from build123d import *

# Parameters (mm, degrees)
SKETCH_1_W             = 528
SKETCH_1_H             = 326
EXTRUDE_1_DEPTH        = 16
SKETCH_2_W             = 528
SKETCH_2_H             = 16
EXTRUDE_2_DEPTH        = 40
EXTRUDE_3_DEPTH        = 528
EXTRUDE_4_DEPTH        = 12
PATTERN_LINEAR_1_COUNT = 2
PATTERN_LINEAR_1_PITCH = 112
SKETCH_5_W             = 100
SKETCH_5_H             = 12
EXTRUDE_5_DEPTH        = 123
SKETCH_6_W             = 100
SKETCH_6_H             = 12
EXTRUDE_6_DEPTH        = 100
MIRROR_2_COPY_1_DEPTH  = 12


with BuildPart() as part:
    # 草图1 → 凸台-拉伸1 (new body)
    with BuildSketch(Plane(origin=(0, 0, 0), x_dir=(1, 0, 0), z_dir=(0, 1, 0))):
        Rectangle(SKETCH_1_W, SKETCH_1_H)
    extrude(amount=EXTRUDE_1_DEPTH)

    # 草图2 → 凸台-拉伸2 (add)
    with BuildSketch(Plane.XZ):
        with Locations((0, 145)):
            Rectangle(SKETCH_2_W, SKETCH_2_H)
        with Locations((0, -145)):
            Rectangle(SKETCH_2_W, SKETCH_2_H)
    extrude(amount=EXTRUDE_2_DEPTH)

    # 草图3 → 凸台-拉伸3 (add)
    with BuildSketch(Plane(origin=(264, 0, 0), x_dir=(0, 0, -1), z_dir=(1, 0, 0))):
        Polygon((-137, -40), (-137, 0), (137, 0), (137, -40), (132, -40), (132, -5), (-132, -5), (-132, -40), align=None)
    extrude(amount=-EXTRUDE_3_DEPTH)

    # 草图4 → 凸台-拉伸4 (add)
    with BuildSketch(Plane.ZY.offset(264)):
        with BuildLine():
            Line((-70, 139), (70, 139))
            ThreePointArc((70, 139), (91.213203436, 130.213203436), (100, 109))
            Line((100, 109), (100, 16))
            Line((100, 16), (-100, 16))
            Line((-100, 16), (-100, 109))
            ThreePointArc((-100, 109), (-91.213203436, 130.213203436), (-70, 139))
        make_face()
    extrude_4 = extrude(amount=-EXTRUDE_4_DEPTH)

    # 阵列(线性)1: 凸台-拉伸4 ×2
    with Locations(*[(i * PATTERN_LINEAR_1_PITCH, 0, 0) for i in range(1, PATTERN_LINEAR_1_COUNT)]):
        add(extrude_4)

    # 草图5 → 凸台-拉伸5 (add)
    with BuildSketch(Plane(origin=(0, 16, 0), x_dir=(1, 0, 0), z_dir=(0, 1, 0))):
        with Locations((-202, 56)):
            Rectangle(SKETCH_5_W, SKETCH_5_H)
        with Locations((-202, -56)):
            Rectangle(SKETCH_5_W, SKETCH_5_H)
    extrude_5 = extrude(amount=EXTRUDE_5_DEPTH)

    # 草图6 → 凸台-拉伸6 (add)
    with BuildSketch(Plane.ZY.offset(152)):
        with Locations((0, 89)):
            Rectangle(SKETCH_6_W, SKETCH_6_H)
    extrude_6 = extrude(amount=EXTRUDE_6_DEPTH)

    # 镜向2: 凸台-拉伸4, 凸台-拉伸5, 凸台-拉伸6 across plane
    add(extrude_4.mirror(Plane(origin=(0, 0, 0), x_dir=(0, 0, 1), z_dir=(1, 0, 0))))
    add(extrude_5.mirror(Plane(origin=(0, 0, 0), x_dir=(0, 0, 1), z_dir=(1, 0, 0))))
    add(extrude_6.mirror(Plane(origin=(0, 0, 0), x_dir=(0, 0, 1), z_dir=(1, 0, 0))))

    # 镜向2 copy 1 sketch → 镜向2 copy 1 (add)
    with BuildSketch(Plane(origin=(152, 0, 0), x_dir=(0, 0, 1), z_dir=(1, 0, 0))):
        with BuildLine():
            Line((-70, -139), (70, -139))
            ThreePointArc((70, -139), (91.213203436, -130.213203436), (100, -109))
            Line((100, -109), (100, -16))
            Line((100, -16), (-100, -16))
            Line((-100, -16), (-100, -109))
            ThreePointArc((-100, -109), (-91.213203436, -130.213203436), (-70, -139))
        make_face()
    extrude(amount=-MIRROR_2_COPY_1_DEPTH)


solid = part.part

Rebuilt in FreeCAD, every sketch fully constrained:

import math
import FreeCAD as App
import Part
import Sketcher

V = App.Vector
Q = App.Units.Quantity

doc = App.newDocument("Part")
params = doc.addObject("Spreadsheet::Sheet", "Params")
for row, (alias, value) in enumerate([
    ("sketch1_width", "528 mm"),
    ("sketch1_height", "326 mm"),
    ("pad1_length", "16 mm"),
    ("sketch2_width", "528 mm"),
    ("sketch2_height", "16 mm"),
    ("pad2_length", "40 mm"),
    ("sketch3_width", "40 mm"),
    ("sketch3_width2", "35 mm"),
    ("sketch3_height", "5 mm"),
    ("sketch3_height2", "264 mm"),
    ("pad3_length", "528 mm"),
    ("sketch4_radius", "30 mm"),
    ("sketch4_width", "93 mm"),
    ("sketch4_height", "140 mm"),
    ("pad4_length", "12 mm"),
    ("linearpattern_pitch", "112 mm"),
    ("sketch5_width", "100 mm"),
    ("sketch5_height", "12 mm"),
    ("pad5_length", "123 mm"),
    ("sketch6_width", "12 mm"),
    ("sketch6_height", "100 mm"),
    ("pad6_length", "100 mm"),
    ("sketch7_radius", "30 mm"),
    ("sketch7_width", "93 mm"),
    ("sketch7_height", "140 mm"),
    ("pad7_length", "12 mm"),
], start=1):
    params.set(f"A{row}", alias)
    params.set(f"B{row}", "=" + value)
    params.setAlias(f"B{row}", alias)

body = doc.addObject("PartDesign::Body", "Body")

# Sketch on XZ plane
sketch1 = doc.addObject("Sketcher::SketchObject", "Sketch")
body.addObject(sketch1)
sketch1.AttachmentSupport = (doc.XZ_Plane, [""])
sketch1.MapMode = "FlatFace"
sketch1.addGeometry([
    Part.LineSegment(V(-264, -163, 0), V(-264, 163, 0)),
    Part.LineSegment(V(-264, 163, 0), V(264, 163, 0)),
    Part.LineSegment(V(264, 163, 0), V(264, -163, 0)),
    Part.LineSegment(V(264, -163, 0), V(-264, -163, 0)),
], False)
sketch1.addConstraint([
    Sketcher.Constraint("Coincident", 0, 2, 1, 1),
    Sketcher.Constraint("Coincident", 1, 2, 2, 1),
    Sketcher.Constraint("Coincident", 2, 2, 3, 1),
    Sketcher.Constraint("Coincident", 3, 2, 0, 1),
    Sketcher.Constraint("Vertical", 0),
    Sketcher.Constraint("Horizontal", 1),
    Sketcher.Constraint("Vertical", 2),
    Sketcher.Constraint("Horizontal", 3),
    Sketcher.Constraint("Symmetric", 0, 2, 2, 2, -1, 1),
    Sketcher.Constraint("DistanceX", 1, 1, 1, 2, Q("528 mm")),
    Sketcher.Constraint("DistanceY", 0, 1, 0, 2, Q("326 mm")),
])
sketch1.setExpression("Constraints[9]", "Params.sketch1_width")
sketch1.setExpression("Constraints[10]", "Params.sketch1_height")
pad1 = doc.addObject("PartDesign::Pad", "Pad")
body.addObject(pad1)
pad1.Profile = sketch1
pad1.setExpression("Length", "Params.pad1_length")
pad1.Reversed = True

# Sketch on XZ plane
sketch2 = doc.addObject("Sketcher::SketchObject", "Sketch001")
body.addObject(sketch2)
sketch2.AttachmentSupport = (doc.XZ_Plane, [""])
sketch2.MapMode = "FlatFace"
sketch2.addGeometry([
    Part.LineSegment(V(-264, 153, 0), V(-264, 137, 0)),  # 0
    Part.LineSegment(V(-264, 137, 0), V(264, 137, 0)),  # 1
    Part.LineSegment(V(264, 137, 0), V(264, 153, 0)),  # 2
    Part.LineSegment(V(264, 153, 0), V(-264, 153, 0)),  # 3
    Part.LineSegment(V(-264, -137, 0), V(-264, -153, 0)),  # 4
    Part.LineSegment(V(-264, -153, 0), V(264, -153, 0)),  # 5
    Part.LineSegment(V(264, -153, 0), V(264, -137, 0)),  # 6
    Part.LineSegment(V(264, -137, 0), V(-264, -137, 0)),  # 7
], False)
sketch2.addConstraint([
    Sketcher.Constraint("Coincident", 0, 2, 1, 1),
    Sketcher.Constraint("Coincident", 1, 2, 2, 1),
    Sketcher.Constraint("Coincident", 2, 2, 3, 1),
    Sketcher.Constraint("Coincident", 3, 2, 0, 1),
    Sketcher.Constraint("Coincident", 4, 2, 5, 1),
    Sketcher.Constraint("Coincident", 5, 2, 6, 1),
    Sketcher.Constraint("Coincident", 6, 2, 7, 1),
    Sketcher.Constraint("Coincident", 7, 2, 4, 1),
    Sketcher.Constraint("Vertical", 0),
    Sketcher.Constraint("Horizontal", 1),
    Sketcher.Constraint("Vertical", 2),
    Sketcher.Constraint("Horizontal", 3),
    Sketcher.Constraint("Vertical", 4),
    Sketcher.Constraint("Horizontal", 5),
    Sketcher.Constraint("Vertical", 6),
    Sketcher.Constraint("Horizontal", 7),
    Sketcher.Constraint("Symmetric", 2, 2, 4, 2, -1, 1),
    Sketcher.Constraint("Symmetric", 0, 2, 6, 2, -1, 1),
    Sketcher.Constraint("Vertical", 3, 2, 4, 2),
    Sketcher.Constraint("DistanceX", 1, 1, 1, 2, Q("528 mm")),
    Sketcher.Constraint("DistanceY", 0, 2, 0, 1, Q("16 mm")),
    Sketcher.Constraint("DistanceY", -1, 1, 0, 2, Q("137 mm")),
])
sketch2.setExpression("Constraints[19]", "Params.sketch2_width")
sketch2.setExpression("Constraints[20]", "Params.sketch2_height")
pad2 = doc.addObject("PartDesign::Pad", "Pad001")
body.addObject(pad2)
pad2.Profile = sketch2
pad2.setExpression("Length", "Params.pad2_length")

# Sketch on YZ plane
sketch3 = doc.addObject("Sketcher::SketchObject", "Sketch002")
body.addObject(sketch3)
sketch3.AttachmentSupport = (doc.YZ_Plane, [""])
sketch3.MapMode = "FlatFace"
sketch3.AttachmentOffset = App.Placement(V(0, 0, 264), App.Rotation())
sketch3.addGeometry([
    Part.LineSegment(V(0, 137, 0), V(-40, 137, 0)),  # 0
    Part.LineSegment(V(-40, 137, 0), V(-40, 132, 0)),  # 1
    Part.LineSegment(V(-40, 132, 0), V(-5, 132, 0)),  # 2
    Part.LineSegment(V(-5, 132, 0), V(-5, -132, 0)),  # 3
    Part.LineSegment(V(-5, -132, 0), V(-40, -132, 0)),  # 4
    Part.LineSegment(V(-40, -132, 0), V(-40, -137, 0)),  # 5
    Part.LineSegment(V(-40, -137, 0), V(0, -137, 0)),  # 6
    Part.LineSegment(V(0, -137, 0), V(0, 137, 0)),  # 7
], False)
sketch3.addConstraint([
    Sketcher.Constraint("Coincident", 0, 2, 1, 1),
    Sketcher.Constraint("Coincident", 1, 2, 2, 1),
    Sketcher.Constraint("Coincident", 2, 2, 3, 1),
    Sketcher.Constraint("Coincident", 3, 2, 4, 1),
    Sketcher.Constraint("Coincident", 4, 2, 5, 1),
    Sketcher.Constraint("Coincident", 5, 2, 6, 1),
    Sketcher.Constraint("Coincident", 6, 2, 7, 1),
    Sketcher.Constraint("Coincident", 7, 2, 0, 1),
    Sketcher.Constraint("Horizontal", 0),
    Sketcher.Constraint("Vertical", 1),
    Sketcher.Constraint("Horizontal", 2),
    Sketcher.Constraint("Vertical", 3),
    Sketcher.Constraint("Horizontal", 4),
    Sketcher.Constraint("Vertical", 5),
    Sketcher.Constraint("Horizontal", 6),
    Sketcher.Constraint("Vertical", 7),
    Sketcher.Constraint("Symmetric", 6, 2, 7, 2, -1, 1),
    Sketcher.Constraint("Symmetric", 1, 2, 4, 2, -1),
    Sketcher.Constraint("DistanceX", 0, 2, 0, 1, Q("40 mm")),
    Sketcher.Constraint("DistanceX", 2, 1, 2, 2, Q("35 mm")),
    Sketcher.Constraint("DistanceY", 1, 2, 1, 1, Q("5 mm")),
    Sketcher.Constraint("DistanceY", 3, 2, 3, 1, Q("264 mm")),
])
sketch3.setExpression("Constraints[18]", "Params.sketch3_width")
sketch3.setExpression("Constraints[19]", "Params.sketch3_width2")
sketch3.setExpression("Constraints[20]", "Params.sketch3_height")
sketch3.setExpression("Constraints[21]", "Params.sketch3_height2")
pad3 = doc.addObject("PartDesign::Pad", "Pad002")
body.addObject(pad3)
pad3.Profile = sketch3
pad3.setExpression("Length", "Params.pad3_length")
pad3.Reversed = True

# Sketch on YZ plane
sketch4 = doc.addObject("Sketcher::SketchObject", "Sketch003")
body.addObject(sketch4)
sketch4.AttachmentSupport = (doc.YZ_Plane, [""])
sketch4.MapMode = "FlatFace"
sketch4.AttachmentOffset = App.Placement(V(0, 0, -264), App.Rotation())
sketch4.addGeometry([
    Part.LineSegment(V(139, 70, 0), V(139, -70, 0)),  # 0
    Part.ArcOfCircle(Part.Circle(V(109, -70, 0), V(0, 0, 1), 30), math.radians(-90), math.radians(0)),  # 1
    Part.LineSegment(V(109, -100, 0), V(16, -100, 0)),  # 2
    Part.LineSegment(V(16, -100, 0), V(16, 100, 0)),  # 3
    Part.LineSegment(V(16, 100, 0), V(109, 100, 0)),  # 4
    Part.ArcOfCircle(Part.Circle(V(109, 70, 0), V(0, 0, 1), 30), math.radians(0), math.radians(90)),  # 5
], False)
sketch4.addConstraint([
    Sketcher.Constraint("Tangent", 0, 2, 1, 2),
    Sketcher.Constraint("Tangent", 1, 1, 2, 1),
    Sketcher.Constraint("Coincident", 2, 2, 3, 1),
    Sketcher.Constraint("Coincident", 3, 2, 4, 1),
    Sketcher.Constraint("Tangent", 4, 2, 5, 2),
    Sketcher.Constraint("Tangent", 5, 1, 0, 1),
    Sketcher.Constraint("Vertical", 0),
    Sketcher.Constraint("Horizontal", 2),
    Sketcher.Constraint("Vertical", 3),
    Sketcher.Constraint("Horizontal", 4),
    Sketcher.Constraint("Equal", 1, 5),
    Sketcher.Constraint("Radius", 1, Q("30 mm")),
    Sketcher.Constraint("DistanceX", 2, 2, 2, 1, Q("93 mm")),
    Sketcher.Constraint("DistanceY", 0, 2, 0, 1, Q("140 mm")),
    Sketcher.Constraint("DistanceX", -1, 1, 1, 3, Q("109 mm")),
    Sketcher.Constraint("DistanceY", 1, 3, -1, 1, Q("70 mm")),
])
sketch4.setExpression("Constraints[11]", "Params.sketch4_radius")
sketch4.setExpression("Constraints[12]", "Params.sketch4_width")
sketch4.setExpression("Constraints[13]", "Params.sketch4_height")
pad4 = doc.addObject("PartDesign::Pad", "Pad003")
body.addObject(pad4)
pad4.Profile = sketch4
pad4.setExpression("Length", "Params.pad4_length")
doc.recompute()

linearpattern = doc.addObject("PartDesign::LinearPattern", "LinearPattern")
body.addObject(linearpattern)
linearpattern.Originals = [pad4]
linearpattern.Direction = (doc.X_Axis, [""])
linearpattern.Mode = "offset"
linearpattern.setExpression("Offset", "Params.linearpattern_pitch")
linearpattern.Occurrences = 2
body.Tip = linearpattern

# Sketch on XZ plane
sketch5 = doc.addObject("Sketcher::SketchObject", "Sketch004")
body.addObject(sketch5)
sketch5.AttachmentSupport = (doc.XZ_Plane, [""])
sketch5.MapMode = "FlatFace"
sketch5.AttachmentOffset = App.Placement(V(0, 0, -16), App.Rotation())
sketch5.addGeometry([
    Part.LineSegment(V(-252, -62, 0), V(-252, -50, 0)),  # 0
    Part.LineSegment(V(-252, -50, 0), V(-152, -50, 0)),  # 1
    Part.LineSegment(V(-152, -50, 0), V(-152, -62, 0)),  # 2
    Part.LineSegment(V(-152, -62, 0), V(-252, -62, 0)),  # 3
    Part.LineSegment(V(-252, 50, 0), V(-252, 62, 0)),  # 4
    Part.LineSegment(V(-252, 62, 0), V(-152, 62, 0)),  # 5
    Part.LineSegment(V(-152, 62, 0), V(-152, 50, 0)),  # 6
    Part.LineSegment(V(-152, 50, 0), V(-252, 50, 0)),  # 7
], False)
sketch5.addConstraint([
    Sketcher.Constraint("Coincident", 0, 2, 1, 1),
    Sketcher.Constraint("Coincident", 1, 2, 2, 1),
    Sketcher.Constraint("Coincident", 2, 2, 3, 1),
    Sketcher.Constraint("Coincident", 3, 2, 0, 1),
    Sketcher.Constraint("Coincident", 4, 2, 5, 1),
    Sketcher.Constraint("Coincident", 5, 2, 6, 1),
    Sketcher.Constraint("Coincident", 6, 2, 7, 1),
    Sketcher.Constraint("Coincident", 7, 2, 4, 1),
    Sketcher.Constraint("Vertical", 0),
    Sketcher.Constraint("Horizontal", 1),
    Sketcher.Constraint("Vertical", 2),
    Sketcher.Constraint("Horizontal", 3),
    Sketcher.Constraint("Vertical", 4),
    Sketcher.Constraint("Horizontal", 5),
    Sketcher.Constraint("Vertical", 6),
    Sketcher.Constraint("Horizontal", 7),
    Sketcher.Constraint("Symmetric", 3, 2, 4, 2, -1),
    Sketcher.Constraint("Symmetric", 1, 2, 6, 2, -1),
    Sketcher.Constraint("DistanceX", 1, 1, 1, 2, Q("100 mm")),
    Sketcher.Constraint("DistanceY", 0, 1, 0, 2, Q("12 mm")),
    Sketcher.Constraint("DistanceX", 0, 2, -1, 1, Q("252 mm")),
    Sketcher.Constraint("DistanceY", 0, 2, -1, 1, Q("50 mm")),
])
sketch5.setExpression("Constraints[18]", "Params.sketch5_width")
sketch5.setExpression("Constraints[19]", "Params.sketch5_height")
pad5 = doc.addObject("PartDesign::Pad", "Pad004")
body.addObject(pad5)
pad5.Profile = sketch5
pad5.setExpression("Length", "Params.pad5_length")
pad5.Reversed = True

# Sketch on YZ plane
sketch6 = doc.addObject("Sketcher::SketchObject", "Sketch005")
body.addObject(sketch6)
sketch6.AttachmentSupport = (doc.YZ_Plane, [""])
sketch6.MapMode = "FlatFace"
sketch6.AttachmentOffset = App.Placement(V(0, 0, -152), App.Rotation())
sketch6.addGeometry([
    Part.LineSegment(V(95, -50, 0), V(83, -50, 0)),
    Part.LineSegment(V(83, -50, 0), V(83, 50, 0)),
    Part.LineSegment(V(83, 50, 0), V(95, 50, 0)),
    Part.LineSegment(V(95, 50, 0), V(95, -50, 0)),
], False)
sketch6.addConstraint([
    Sketcher.Constraint("Coincident", 0, 2, 1, 1),
    Sketcher.Constraint("Coincident", 1, 2, 2, 1),
    Sketcher.Constraint("Coincident", 2, 2, 3, 1),
    Sketcher.Constraint("Coincident", 3, 2, 0, 1),
    Sketcher.Constraint("Horizontal", 0),
    Sketcher.Constraint("Vertical", 1),
    Sketcher.Constraint("Horizontal", 2),
    Sketcher.Constraint("Vertical", 3),
    Sketcher.Constraint("DistanceX", 0, 2, 0, 1, Q("12 mm")),
    Sketcher.Constraint("DistanceY", 1, 1, 1, 2, Q("100 mm")),
    Sketcher.Constraint("DistanceX", -1, 1, 0, 2, Q("83 mm")),
    Sketcher.Constraint("DistanceY", 0, 2, -1, 1, Q("50 mm")),
])
sketch6.setExpression("Constraints[8]", "Params.sketch6_width")
sketch6.setExpression("Constraints[9]", "Params.sketch6_height")
pad6 = doc.addObject("PartDesign::Pad", "Pad005")
body.addObject(pad6)
pad6.Profile = sketch6
pad6.setExpression("Length", "Params.pad6_length")
pad6.Reversed = True
doc.recompute()

mirrored = doc.addObject("PartDesign::Mirrored", "Mirrored")
body.addObject(mirrored)
mirrored.Originals = [pad4, pad5, pad6]
mirrored.MirrorPlane = (doc.YZ_Plane, [""])
body.Tip = mirrored

# Sketch on YZ plane
sketch7 = doc.addObject("Sketcher::SketchObject", "Sketch006")
body.addObject(sketch7)
sketch7.AttachmentSupport = (doc.YZ_Plane, [""])
sketch7.MapMode = "FlatFace"
sketch7.AttachmentOffset = App.Placement(V(0, 0, 152), App.Rotation())
sketch7.addGeometry([
    Part.LineSegment(V(139, -70, 0), V(139, 70, 0)),  # 0
    Part.ArcOfCircle(Part.Circle(V(109, 70, 0), V(0, 0, 1), 30), math.radians(0), math.radians(90)),  # 1
    Part.LineSegment(V(109, 100, 0), V(16, 100, 0)),  # 2
    Part.LineSegment(V(16, 100, 0), V(16, -100, 0)),  # 3
    Part.LineSegment(V(16, -100, 0), V(109, -100, 0)),  # 4
    Part.ArcOfCircle(Part.Circle(V(109, -70, 0), V(0, 0, 1), 30), math.radians(-90), math.radians(0)),  # 5
], False)
sketch7.addConstraint([
    Sketcher.Constraint("Tangent", 0, 2, 1, 1),
    Sketcher.Constraint("Tangent", 1, 2, 2, 1),
    Sketcher.Constraint("Coincident", 2, 2, 3, 1),
    Sketcher.Constraint("Coincident", 3, 2, 4, 1),
    Sketcher.Constraint("Tangent", 4, 2, 5, 1),
    Sketcher.Constraint("Tangent", 5, 2, 0, 1),
    Sketcher.Constraint("Vertical", 0),
    Sketcher.Constraint("Horizontal", 2),
    Sketcher.Constraint("Vertical", 3),
    Sketcher.Constraint("Horizontal", 4),
    Sketcher.Constraint("Equal", 1, 5),
    Sketcher.Constraint("Radius", 1, Q("30 mm")),
    Sketcher.Constraint("DistanceX", 2, 2, 2, 1, Q("93 mm")),
    Sketcher.Constraint("DistanceY", 0, 1, 0, 2, Q("140 mm")),
    Sketcher.Constraint("DistanceX", -1, 1, 1, 3, Q("109 mm")),
    Sketcher.Constraint("DistanceY", -1, 1, 1, 3, Q("70 mm")),
])
sketch7.setExpression("Constraints[11]", "Params.sketch7_radius")
sketch7.setExpression("Constraints[12]", "Params.sketch7_width")
sketch7.setExpression("Constraints[13]", "Params.sketch7_height")
pad7 = doc.addObject("PartDesign::Pad", "Pad006")
body.addObject(pad7)
pad7.Profile = sketch7
pad7.setExpression("Length", "Params.pad7_length")
pad7.Reversed = True

doc.recompute()
